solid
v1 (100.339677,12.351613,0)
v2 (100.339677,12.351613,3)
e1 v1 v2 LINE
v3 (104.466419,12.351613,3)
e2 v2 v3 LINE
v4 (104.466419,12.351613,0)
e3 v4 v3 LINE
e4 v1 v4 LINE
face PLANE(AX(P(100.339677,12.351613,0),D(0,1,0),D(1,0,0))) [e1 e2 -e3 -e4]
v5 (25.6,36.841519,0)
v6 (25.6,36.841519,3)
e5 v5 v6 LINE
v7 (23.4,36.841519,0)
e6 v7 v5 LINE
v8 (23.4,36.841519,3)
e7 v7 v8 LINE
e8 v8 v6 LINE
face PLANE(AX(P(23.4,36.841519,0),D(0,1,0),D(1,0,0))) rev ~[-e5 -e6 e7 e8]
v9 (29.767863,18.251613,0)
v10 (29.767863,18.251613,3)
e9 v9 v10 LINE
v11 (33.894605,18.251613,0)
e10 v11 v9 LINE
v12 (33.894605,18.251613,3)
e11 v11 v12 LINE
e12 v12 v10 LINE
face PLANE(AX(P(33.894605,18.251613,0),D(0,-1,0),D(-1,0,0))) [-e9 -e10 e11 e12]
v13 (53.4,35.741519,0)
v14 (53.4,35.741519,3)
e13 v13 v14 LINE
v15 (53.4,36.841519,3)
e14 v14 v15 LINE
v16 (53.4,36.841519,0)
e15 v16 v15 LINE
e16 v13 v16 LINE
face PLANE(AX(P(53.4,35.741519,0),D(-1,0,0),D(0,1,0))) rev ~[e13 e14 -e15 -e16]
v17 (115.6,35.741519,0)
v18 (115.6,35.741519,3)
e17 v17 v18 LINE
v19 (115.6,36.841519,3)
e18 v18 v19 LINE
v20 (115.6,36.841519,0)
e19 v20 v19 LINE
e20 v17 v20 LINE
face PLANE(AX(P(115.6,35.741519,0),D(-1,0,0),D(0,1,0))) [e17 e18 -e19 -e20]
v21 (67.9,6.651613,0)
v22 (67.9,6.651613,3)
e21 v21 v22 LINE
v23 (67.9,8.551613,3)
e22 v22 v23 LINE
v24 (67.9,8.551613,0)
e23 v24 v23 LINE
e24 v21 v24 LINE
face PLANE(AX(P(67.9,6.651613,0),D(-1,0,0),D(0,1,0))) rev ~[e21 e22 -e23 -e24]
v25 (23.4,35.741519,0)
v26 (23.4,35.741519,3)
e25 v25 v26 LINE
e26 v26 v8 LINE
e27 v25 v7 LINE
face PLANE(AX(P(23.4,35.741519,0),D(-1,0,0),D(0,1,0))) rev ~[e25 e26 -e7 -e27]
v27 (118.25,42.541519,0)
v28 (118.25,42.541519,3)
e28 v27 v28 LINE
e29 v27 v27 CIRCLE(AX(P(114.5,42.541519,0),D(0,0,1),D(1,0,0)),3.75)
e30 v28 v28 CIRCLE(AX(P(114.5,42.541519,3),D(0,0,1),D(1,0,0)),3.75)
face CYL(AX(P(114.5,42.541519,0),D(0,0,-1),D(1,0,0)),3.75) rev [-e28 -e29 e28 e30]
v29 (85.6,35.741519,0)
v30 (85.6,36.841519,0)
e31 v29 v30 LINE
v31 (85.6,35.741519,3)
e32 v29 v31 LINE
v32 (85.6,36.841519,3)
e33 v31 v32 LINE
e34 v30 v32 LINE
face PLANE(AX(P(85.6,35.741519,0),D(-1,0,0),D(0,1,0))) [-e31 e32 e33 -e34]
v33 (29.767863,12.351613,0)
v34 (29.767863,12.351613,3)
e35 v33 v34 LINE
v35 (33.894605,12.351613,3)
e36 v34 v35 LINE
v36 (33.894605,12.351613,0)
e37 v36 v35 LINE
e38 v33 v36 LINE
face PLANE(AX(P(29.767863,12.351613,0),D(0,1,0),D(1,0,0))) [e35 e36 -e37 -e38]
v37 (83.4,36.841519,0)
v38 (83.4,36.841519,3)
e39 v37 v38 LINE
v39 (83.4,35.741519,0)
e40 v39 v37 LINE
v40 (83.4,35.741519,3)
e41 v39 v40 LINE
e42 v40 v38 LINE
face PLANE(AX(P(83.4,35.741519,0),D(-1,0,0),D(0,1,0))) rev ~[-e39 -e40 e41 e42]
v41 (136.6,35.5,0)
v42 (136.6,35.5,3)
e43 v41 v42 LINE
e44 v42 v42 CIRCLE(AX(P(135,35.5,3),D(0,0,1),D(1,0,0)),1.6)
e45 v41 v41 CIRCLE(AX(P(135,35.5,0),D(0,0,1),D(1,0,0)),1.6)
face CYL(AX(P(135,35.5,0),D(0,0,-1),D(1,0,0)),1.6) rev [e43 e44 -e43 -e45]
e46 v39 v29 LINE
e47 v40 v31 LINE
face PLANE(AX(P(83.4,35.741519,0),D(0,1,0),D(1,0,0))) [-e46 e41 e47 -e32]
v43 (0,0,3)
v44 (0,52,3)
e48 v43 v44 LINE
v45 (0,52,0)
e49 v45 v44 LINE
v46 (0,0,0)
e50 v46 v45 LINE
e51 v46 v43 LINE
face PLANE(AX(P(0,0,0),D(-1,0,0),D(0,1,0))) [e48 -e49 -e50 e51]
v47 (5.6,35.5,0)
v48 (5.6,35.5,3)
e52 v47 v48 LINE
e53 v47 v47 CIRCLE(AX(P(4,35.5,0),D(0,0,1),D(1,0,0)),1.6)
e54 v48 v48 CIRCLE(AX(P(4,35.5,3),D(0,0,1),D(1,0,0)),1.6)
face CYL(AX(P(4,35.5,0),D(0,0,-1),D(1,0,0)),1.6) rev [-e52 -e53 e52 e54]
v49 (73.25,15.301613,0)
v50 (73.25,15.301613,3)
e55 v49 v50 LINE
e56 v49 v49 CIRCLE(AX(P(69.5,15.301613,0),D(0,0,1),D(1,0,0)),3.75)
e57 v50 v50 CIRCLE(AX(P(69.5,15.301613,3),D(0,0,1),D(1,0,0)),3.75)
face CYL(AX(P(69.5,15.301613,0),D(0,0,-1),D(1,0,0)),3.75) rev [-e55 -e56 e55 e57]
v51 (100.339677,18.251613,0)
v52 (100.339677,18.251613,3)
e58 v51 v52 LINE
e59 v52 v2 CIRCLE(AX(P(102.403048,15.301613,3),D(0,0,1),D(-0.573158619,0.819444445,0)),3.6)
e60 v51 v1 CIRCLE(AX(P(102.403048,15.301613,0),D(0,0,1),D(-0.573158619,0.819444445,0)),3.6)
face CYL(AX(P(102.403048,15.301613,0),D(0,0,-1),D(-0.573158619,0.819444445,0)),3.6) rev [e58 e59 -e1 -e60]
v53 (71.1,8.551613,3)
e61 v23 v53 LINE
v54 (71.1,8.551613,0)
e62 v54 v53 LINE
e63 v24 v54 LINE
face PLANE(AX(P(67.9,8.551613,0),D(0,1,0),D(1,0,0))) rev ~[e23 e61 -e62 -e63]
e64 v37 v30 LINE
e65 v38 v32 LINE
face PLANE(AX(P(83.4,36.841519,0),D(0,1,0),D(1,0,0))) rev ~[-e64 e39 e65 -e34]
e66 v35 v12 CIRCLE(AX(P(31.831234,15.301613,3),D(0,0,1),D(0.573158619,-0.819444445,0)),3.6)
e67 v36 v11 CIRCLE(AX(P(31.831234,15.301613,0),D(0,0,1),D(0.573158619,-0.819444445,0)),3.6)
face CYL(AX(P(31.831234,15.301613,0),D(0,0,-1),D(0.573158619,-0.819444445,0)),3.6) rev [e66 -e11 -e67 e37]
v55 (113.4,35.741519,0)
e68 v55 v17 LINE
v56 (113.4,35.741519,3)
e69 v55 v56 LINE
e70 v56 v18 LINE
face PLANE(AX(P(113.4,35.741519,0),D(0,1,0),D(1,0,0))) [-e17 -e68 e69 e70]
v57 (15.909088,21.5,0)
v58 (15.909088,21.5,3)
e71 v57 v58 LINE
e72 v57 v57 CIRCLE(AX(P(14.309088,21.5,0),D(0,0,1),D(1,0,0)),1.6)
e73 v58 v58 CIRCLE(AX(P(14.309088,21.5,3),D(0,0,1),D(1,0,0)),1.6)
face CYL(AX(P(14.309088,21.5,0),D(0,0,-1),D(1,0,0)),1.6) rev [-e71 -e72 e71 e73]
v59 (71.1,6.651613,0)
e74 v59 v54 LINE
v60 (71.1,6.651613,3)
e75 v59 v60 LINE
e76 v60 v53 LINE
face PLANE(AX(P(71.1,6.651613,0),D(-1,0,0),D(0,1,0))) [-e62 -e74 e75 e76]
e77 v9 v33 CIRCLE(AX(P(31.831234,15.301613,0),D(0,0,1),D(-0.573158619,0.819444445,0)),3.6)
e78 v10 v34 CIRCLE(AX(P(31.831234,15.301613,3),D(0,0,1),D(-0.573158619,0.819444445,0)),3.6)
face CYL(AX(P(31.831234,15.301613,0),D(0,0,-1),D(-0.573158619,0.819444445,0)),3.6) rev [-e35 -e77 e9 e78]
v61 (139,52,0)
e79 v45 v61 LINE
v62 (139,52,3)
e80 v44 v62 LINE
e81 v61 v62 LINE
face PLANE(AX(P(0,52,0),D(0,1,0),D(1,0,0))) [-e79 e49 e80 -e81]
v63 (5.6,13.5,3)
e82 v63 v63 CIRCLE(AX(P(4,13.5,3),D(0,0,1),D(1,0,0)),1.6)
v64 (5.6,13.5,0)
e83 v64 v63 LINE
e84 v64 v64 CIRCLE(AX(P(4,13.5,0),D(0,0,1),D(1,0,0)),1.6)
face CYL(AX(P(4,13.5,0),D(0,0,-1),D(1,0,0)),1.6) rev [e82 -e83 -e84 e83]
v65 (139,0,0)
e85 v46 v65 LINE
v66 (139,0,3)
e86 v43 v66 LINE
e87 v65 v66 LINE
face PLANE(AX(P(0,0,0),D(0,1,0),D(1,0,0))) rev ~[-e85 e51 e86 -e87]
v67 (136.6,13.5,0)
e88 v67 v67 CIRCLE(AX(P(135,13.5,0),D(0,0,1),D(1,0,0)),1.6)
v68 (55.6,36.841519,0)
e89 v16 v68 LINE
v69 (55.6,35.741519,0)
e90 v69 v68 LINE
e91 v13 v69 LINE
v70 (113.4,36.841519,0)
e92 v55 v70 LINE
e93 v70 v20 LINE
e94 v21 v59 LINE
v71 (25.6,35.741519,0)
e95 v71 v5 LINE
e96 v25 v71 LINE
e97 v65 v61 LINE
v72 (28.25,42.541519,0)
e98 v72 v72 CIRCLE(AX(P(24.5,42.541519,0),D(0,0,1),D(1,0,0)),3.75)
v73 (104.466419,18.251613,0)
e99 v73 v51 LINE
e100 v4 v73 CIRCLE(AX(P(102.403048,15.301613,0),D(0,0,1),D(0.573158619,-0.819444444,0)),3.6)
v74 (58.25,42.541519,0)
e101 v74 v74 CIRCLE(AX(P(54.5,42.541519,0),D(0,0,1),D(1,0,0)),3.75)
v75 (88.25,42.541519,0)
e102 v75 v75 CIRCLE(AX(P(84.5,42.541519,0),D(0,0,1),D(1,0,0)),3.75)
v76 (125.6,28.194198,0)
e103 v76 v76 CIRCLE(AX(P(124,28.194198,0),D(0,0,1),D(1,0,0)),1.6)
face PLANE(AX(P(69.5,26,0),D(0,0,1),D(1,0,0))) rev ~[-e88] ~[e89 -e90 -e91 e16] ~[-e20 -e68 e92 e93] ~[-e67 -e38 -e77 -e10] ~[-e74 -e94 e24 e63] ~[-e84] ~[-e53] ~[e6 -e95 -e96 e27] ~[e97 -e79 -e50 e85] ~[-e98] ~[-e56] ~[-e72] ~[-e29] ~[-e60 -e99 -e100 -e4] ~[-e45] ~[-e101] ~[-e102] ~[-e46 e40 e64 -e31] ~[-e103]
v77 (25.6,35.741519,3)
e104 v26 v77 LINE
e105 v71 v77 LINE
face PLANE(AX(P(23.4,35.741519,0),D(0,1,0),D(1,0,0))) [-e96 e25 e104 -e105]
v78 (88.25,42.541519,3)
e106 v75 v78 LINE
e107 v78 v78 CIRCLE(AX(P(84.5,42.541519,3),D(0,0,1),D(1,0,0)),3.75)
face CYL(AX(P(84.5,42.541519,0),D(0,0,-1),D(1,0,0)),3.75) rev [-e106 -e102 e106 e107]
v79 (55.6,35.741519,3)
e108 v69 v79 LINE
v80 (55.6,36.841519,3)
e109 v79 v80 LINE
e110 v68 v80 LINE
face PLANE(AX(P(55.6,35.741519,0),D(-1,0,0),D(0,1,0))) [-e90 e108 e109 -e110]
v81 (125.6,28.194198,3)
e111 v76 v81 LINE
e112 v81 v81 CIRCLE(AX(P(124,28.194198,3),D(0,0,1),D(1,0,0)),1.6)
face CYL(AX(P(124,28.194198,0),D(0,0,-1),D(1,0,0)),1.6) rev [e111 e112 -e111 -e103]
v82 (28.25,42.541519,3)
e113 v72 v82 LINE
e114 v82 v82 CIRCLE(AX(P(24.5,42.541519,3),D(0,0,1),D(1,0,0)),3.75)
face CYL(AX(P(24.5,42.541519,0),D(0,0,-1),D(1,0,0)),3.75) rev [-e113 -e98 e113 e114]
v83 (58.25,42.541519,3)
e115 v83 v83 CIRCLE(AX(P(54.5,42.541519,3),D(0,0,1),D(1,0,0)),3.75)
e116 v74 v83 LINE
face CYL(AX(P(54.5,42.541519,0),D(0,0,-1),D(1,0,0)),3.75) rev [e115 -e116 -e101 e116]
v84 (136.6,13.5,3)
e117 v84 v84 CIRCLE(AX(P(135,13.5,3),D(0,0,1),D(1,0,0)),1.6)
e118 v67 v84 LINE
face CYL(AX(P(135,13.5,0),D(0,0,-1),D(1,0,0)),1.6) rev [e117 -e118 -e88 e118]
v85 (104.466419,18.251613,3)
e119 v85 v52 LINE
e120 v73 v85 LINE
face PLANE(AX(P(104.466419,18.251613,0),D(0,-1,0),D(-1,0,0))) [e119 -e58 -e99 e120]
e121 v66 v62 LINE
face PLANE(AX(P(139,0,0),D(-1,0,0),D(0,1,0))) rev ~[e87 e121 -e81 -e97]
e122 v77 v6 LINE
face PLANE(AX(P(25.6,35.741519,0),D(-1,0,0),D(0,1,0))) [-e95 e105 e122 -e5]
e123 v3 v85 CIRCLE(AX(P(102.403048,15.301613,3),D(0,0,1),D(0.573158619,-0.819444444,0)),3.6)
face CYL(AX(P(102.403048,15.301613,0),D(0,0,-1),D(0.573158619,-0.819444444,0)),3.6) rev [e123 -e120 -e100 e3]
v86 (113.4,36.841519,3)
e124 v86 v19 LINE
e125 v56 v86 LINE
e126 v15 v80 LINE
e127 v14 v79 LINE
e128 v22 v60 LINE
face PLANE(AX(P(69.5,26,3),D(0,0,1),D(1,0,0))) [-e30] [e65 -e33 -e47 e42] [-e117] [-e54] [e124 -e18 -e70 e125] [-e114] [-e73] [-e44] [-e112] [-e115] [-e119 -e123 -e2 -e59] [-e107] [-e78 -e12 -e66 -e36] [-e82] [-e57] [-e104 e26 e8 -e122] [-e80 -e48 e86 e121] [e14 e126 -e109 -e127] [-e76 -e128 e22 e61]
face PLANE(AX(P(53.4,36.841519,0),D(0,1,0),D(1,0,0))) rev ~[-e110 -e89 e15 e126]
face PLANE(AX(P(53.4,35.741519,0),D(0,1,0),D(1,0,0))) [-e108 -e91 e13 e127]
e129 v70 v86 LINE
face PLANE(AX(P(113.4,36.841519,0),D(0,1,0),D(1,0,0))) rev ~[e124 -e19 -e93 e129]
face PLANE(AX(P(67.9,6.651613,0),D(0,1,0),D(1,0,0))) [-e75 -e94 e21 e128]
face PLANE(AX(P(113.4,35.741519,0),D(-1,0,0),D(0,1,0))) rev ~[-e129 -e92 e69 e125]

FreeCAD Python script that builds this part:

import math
import FreeCAD as App
import Part
import Sketcher
from FreeCAD import Vector


def add_polygon(sketch, points):
    """Adds a closed chain of lines whose ends are joined by coincident constraints."""
    first, n = sketch.GeometryCount, len(points)
    for a, b in zip(points, points[1:] + points[:1]):
        sketch.addGeometry(Part.LineSegment(App.Vector(*a, 0), App.Vector(*b, 0)), False)
    for i in range(n):
        sketch.addConstraint(Sketcher.Constraint("Coincident", first + i, 2, first + (i + 1) % n, 1))

doc = App.newDocument("Part")
body = doc.addObject("PartDesign::Body", "Body")

# Sketch on XY plane
sketch1 = body.newObject("Sketcher::SketchObject", "Sketch")
sketch1.AttachmentSupport = (doc.getObject("XY_Plane"), [""])
sketch1.MapMode = "FlatFace"
add_polygon(sketch1, [(0, 52), (0, 0), (139, 0), (139, 52)])  # lines 0-3
sketch1.addGeometry(Part.Circle(Vector(4, 13.5, 0), Vector(0, 0, 1), 1.6), False)  # 4
sketch1.addGeometry(Part.LineSegment(Vector(33.9, 12.4, 0), Vector(29.8, 12.4, 0)), False)  # 5
sketch1.addGeometry(Part.ArcOfCircle(Part.Circle(Vector(31.8, 15.3, 0), Vector(0, 0, 1), 3.6), math.radians(125), math.radians(235)), False)  # 6
sketch1.addGeometry(Part.LineSegment(Vector(29.8, 18.3, 0), Vector(33.9, 18.3, 0)), False)  # 7
sketch1.addGeometry(Part.ArcOfCircle(Part.Circle(Vector(31.8, 15.3, 0), Vector(0, 0, 1), 3.6), math.radians(-55), math.radians(55)), False)  # 8
sketch1.addGeometry(Part.Circle(Vector(14.3, 21.5, 0), Vector(0, 0, 1), 1.6), False)  # 9
add_polygon(sketch1, [(71.1, 6.7), (67.9, 6.7), (67.9, 8.6), (71.1, 8.6)])  # lines 10-13
sketch1.addGeometry(Part.Circle(Vector(69.5, 15.3, 0), Vector(0, 0, 1), 3.8), False)  # 14
sketch1.addGeometry(Part.LineSegment(Vector(104.5, 12.4, 0), Vector(100.3, 12.4, 0)), False)  # 15
sketch1.addGeometry(Part.ArcOfCircle(Part.Circle(Vector(102.4, 15.3, 0), Vector(0, 0, 1), 3.6), math.radians(125), math.radians(235)), False)  # 16
sketch1.addGeometry(Part.LineSegment(Vector(100.3, 18.3, 0), Vector(104.5, 18.3, 0)), False)  # 17
sketch1.addGeometry(Part.ArcOfCircle(Part.Circle(Vector(102.4, 15.3, 0), Vector(0, 0, 1), 3.6), math.radians(-55), math.radians(55)), False)  # 18
sketch1.addGeometry(Part.Circle(Vector(135, 13.5, 0), Vector(0, 0, 1), 1.6), False)  # 19
sketch1.addGeometry(Part.Circle(Vector(4, 35.5, 0), Vector(0, 0, 1), 1.6), False)  # 20
add_polygon(sketch1, [(25.6, 35.7), (23.4, 35.7), (23.4, 36.8), (25.6, 36.8)])  # lines 21-24
add_polygon(sketch1, [(55.6, 35.7), (53.4, 35.7), (53.4, 36.8), (55.6, 36.8)])  # lines 25-28
sketch1.addGeometry(Part.Circle(Vector(24.5, 42.5, 0), Vector(0, 0, 1), 3.8), False)  # 29
sketch1.addGeometry(Part.Circle(Vector(54.5, 42.5, 0), Vector(0, 0, 1), 3.8), False)  # 30
add_polygon(sketch1, [(85.6, 35.7), (83.4, 35.7), (83.4, 36.8), (85.6, 36.8)])  # lines 31-34
sketch1.addGeometry(Part.Circle(Vector(124, 28.2, 0), Vector(0, 0, 1), 1.6), False)  # 35
add_polygon(sketch1, [(115.6, 35.7), (113.4, 35.7), (113.4, 36.8), (115.6, 36.8)])  # lines 36-39
sketch1.addGeometry(Part.Circle(Vector(135, 35.5, 0), Vector(0, 0, 1), 1.6), False)  # 40
sketch1.addGeometry(Part.Circle(Vector(84.5, 42.5, 0), Vector(0, 0, 1), 3.8), False)  # 41
sketch1.addGeometry(Part.Circle(Vector(114.5, 42.5, 0), Vector(0, 0, 1), 3.8), False)  # 42
sketch1.addConstraint(Sketcher.Constraint("Coincident", 5, 2, 6, 2))
sketch1.addConstraint(Sketcher.Constraint("Coincident", 6, 1, 7, 1))
sketch1.addConstraint(Sketcher.Constraint("Coincident", 7, 2, 8, 2))
sketch1.addConstraint(Sketcher.Constraint("Coincident", 8, 1, 5, 1))
sketch1.addConstraint(Sketcher.Constraint("Coincident", 15, 2, 16, 2))
sketch1.addConstraint(Sketcher.Constraint("Coincident", 16, 1, 17, 1))
sketch1.addConstraint(Sketcher.Constraint("Coincident", 17, 2, 18, 2))
sketch1.addConstraint(Sketcher.Constraint("Coincident", 18, 1, 15, 1))
sketch1.addConstraint(Sketcher.Constraint("Vertical", 0))
sketch1.addConstraint(Sketcher.Constraint("Horizontal", 1))
sketch1.addConstraint(Sketcher.Constraint("Vertical", 2))
sketch1.addConstraint(Sketcher.Constraint("Horizontal", 3))
sketch1.addConstraint(Sketcher.Constraint("Horizontal", 5))
sketch1.addConstraint(Sketcher.Constraint("Horizontal", 7))
sketch1.addConstraint(Sketcher.Constraint("Horizontal", 10))
sketch1.addConstraint(Sketcher.Constraint("Vertical", 11))
sketch1.addConstraint(Sketcher.Constraint("Horizontal", 12))
sketch1.addConstraint(Sketcher.Constraint("Vertical", 13))
sketch1.addConstraint(Sketcher.Constraint("Horizontal", 15))
sketch1.addConstraint(Sketcher.Constraint("Horizontal", 17))
sketch1.addConstraint(Sketcher.Constraint("Horizontal", 21))
sketch1.addConstraint(Sketcher.Constraint("Vertical", 22))
sketch1.addConstraint(Sketcher.Constraint("Horizontal", 23))
sketch1.addConstraint(Sketcher.Constraint("Vertical", 24))
sketch1.addConstraint(Sketcher.Constraint("Horizontal", 25))
sketch1.addConstraint(Sketcher.Constraint("Vertical", 26))
sketch1.addConstraint(Sketcher.Constraint("Horizontal", 27))
sketch1.addConstraint(Sketcher.Constraint("Vertical", 28))
sketch1.addConstraint(Sketcher.Constraint("Horizontal", 31))
sketch1.addConstraint(Sketcher.Constraint("Vertical", 32))
sketch1.addConstraint(Sketcher.Constraint("Horizontal", 33))
sketch1.addConstraint(Sketcher.Constraint("Vertical", 34))
sketch1.addConstraint(Sketcher.Constraint("Horizontal", 36))
sketch1.addConstraint(Sketcher.Constraint("Vertical", 37))
sketch1.addConstraint(Sketcher.Constraint("Horizontal", 38))
sketch1.addConstraint(Sketcher.Constraint("Vertical", 39))
sketch1.addConstraint(Sketcher.Constraint("Coincident", 0, 2, -1, 1))
sketch1.addConstraint(Sketcher.Constraint("Coincident", 8, 3, 6, 3))
sketch1.addConstraint(Sketcher.Constraint("Coincident", 18, 3, 16, 3))
sketch1.addConstraint(Sketcher.Constraint("Equal", 6, 8))
sketch1.addConstraint(Sketcher.Constraint("Equal", 4, 9))
sketch1.addConstraint(Sketcher.Constraint("Equal", 8, 16))
sketch1.addConstraint(Sketcher.Constraint("Equal", 16, 18))
sketch1.addConstraint(Sketcher.Constraint("Equal", 9, 19))
sketch1.addConstraint(Sketcher.Constraint("Equal", 19, 20))
sketch1.addConstraint(Sketcher.Constraint("Equal", 14, 29))
sketch1.addConstraint(Sketcher.Constraint("Equal", 29, 30))
sketch1.addConstraint(Sketcher.Constraint("Equal", 20, 35))
sketch1.addConstraint(Sketcher.Constraint("Equal", 35, 40))
sketch1.addConstraint(Sketcher.Constraint("Equal", 30, 41))
sketch1.addConstraint(Sketcher.Constraint("Equal", 41, 42))
sketch1.addConstraint(Sketcher.Constraint("Horizontal", 8, 3, 14, 3))
sketch1.addConstraint(Sketcher.Constraint("Horizontal", 14, 3, 16, 3))
sketch1.addConstraint(Sketcher.Constraint("Horizontal", 4, 3, 19, 3))
sketch1.addConstraint(Sketcher.Constraint("Horizontal", 29, 3, 30, 3))
sketch1.addConstraint(Sketcher.Constraint("Horizontal", 20, 3, 40, 3))
sketch1.addConstraint(Sketcher.Constraint("Horizontal", 30, 3, 41, 3))
sketch1.addConstraint(Sketcher.Constraint("Horizontal", 41, 3, 42, 3))
sketch1.addConstraint(Sketcher.Constraint("Horizontal", 8, 1, 15, 2))
sketch1.addConstraint(Sketcher.Constraint("Horizontal", 7, 2, 16, 1))
sketch1.addConstraint(Sketcher.Constraint("Horizontal", 24, 2, 25, 2))
sketch1.addConstraint(Sketcher.Constraint("Horizontal", 23, 2, 26, 2))
sketch1.addConstraint(Sketcher.Constraint("Horizontal", 28, 2, 31, 2))
sketch1.addConstraint(Sketcher.Constraint("Horizontal", 27, 2, 32, 2))
sketch1.addConstraint(Sketcher.Constraint("Horizontal", 34, 2, 36, 2))
sketch1.addConstraint(Sketcher.Constraint("Horizontal", 33, 2, 37, 2))
sketch1.addConstraint(Sketcher.Constraint("Vertical", 4, 3, 20, 3))
sketch1.addConstraint(Sketcher.Constraint("Vertical", 19, 3, 40, 3))
sketch1.addConstraint(Sketcher.Constraint("Vertical", 5, 2, 6, 1))
sketch1.addConstraint(Sketcher.Constraint("Equal", 23, 25))
sketch1.addConstraint(Sketcher.Constraint("Equal", 27, 31))
sketch1.addConstraint(Sketcher.Constraint("Equal", 33, 36))
sketch1.addConstraint(Sketcher.Constraint("Diameter", 4, 3.2))
sketch1.addConstraint(Sketcher.Constraint("Diameter", 14, 7.5))
sketch1.addConstraint(Sketcher.Constraint("Radius", 6, 3.6))
sketch1.addConstraint(Sketcher.Constraint("DistanceX", 1, 1, 1, 2, 139.0))
sketch1.addConstraint(Sketcher.Constraint("DistanceY", 0, 2, 0, 1, 52.0))
sketch1.addConstraint(Sketcher.Constraint("DistanceX", 10, 2, 10, 1, 3.2))
sketch1.addConstraint(Sketcher.Constraint("DistanceX", 21, 2, 21, 1, 2.2))
sketch1.addConstraint(Sketcher.Constraint("DistanceY", 11, 1, 11, 2, 1.9))
sketch1.addConstraint(Sketcher.Constraint("DistanceY", 22, 1, 22, 2, 1.1))
sketch1.addConstraint(Sketcher.Constraint("DistanceX", -1, 1, 4, 3, 4.0))
sketch1.addConstraint(Sketcher.Constraint("DistanceX", -1, 1, 19, 3, 135.0))
sketch1.addConstraint(Sketcher.Constraint("DistanceX", -1, 1, 35, 3, 124.0))
sketch1.addConstraint(Sketcher.Constraint("DistanceY", 4, 3, 9, 3, 8.0))
sketch1.addConstraint(Sketcher.Constraint("DistanceY", 9, 3, 20, 3, 14.0))
sketch1.addConstraint(Sketcher.Constraint("DistanceX", 29, 3, 30, 3, 30.0))
sketch1.addConstraint(Sketcher.Constraint("DistanceX", 30, 3, 14, 3, 15.0))
sketch1.addConstraint(Sketcher.Constraint("DistanceX", 30, 3, 41, 3, 30.0))
sketch1.addConstraint(Sketcher.Constraint("DistanceX", 41, 3, 42, 3, 30.0))
sketch1.addConstraint(Sketcher.Constraint("DistanceY", -1, 1, 4, 3, 13.5))
sketch1.addConstraint(Sketcher.Constraint("DistanceX", -1, 1, 14, 3, 69.5))
sketch1.addConstraint(Sketcher.Constraint("DistanceX", -1, 1, 10, 2, 67.9))
sketch1.addConstraint(Sketcher.Constraint("DistanceX", -1, 1, 21, 2, 23.4))
sketch1.addConstraint(Sketcher.Constraint("DistanceX", -1, 1, 25, 2, 53.4))
sketch1.addConstraint(Sketcher.Constraint("DistanceX", -1, 1, 31, 2, 83.4))
sketch1.addConstraint(Sketcher.Constraint("DistanceX", -1, 1, 36, 2, 113.4))
sketch1.addConstraint(Sketcher.Constraint("DistanceY", 5, 2, 6, 1, 5.9))
sketch1.addConstraint(Sketcher.Constraint("DistanceY", 10, 2, 8, 1, 5.7))
sketch1.addConstraint(Sketcher.Constraint("DistanceY", 21, 2, 29, 3, 6.8))
sketch1.addConstraint(Sketcher.Constraint("DistanceX", -1, 1, 9, 3, 14.309088))
sketch1.addConstraint(Sketcher.Constraint("DistanceY", -1, 1, 29, 3, 42.541519))
sketch1.addConstraint(Sketcher.Constraint("DistanceX", -1, 1, 17, 2, 104.466419))
sketch1.addConstraint(Sketcher.Constraint("DistanceY", 35, 3, 30, 3, 14.347322))
sketch1.addConstraint(Sketcher.Constraint("DistanceX", -1, 1, 6, 3, 31.831234))
sketch1.addConstraint(Sketcher.Constraint("DistanceY", -1, 1, 6, 3, 15.301613))
pad1 = body.newObject("PartDesign::Pad", "Pad")
pad1.Profile = sketch1
pad1.Length = 3

doc.recompute()
